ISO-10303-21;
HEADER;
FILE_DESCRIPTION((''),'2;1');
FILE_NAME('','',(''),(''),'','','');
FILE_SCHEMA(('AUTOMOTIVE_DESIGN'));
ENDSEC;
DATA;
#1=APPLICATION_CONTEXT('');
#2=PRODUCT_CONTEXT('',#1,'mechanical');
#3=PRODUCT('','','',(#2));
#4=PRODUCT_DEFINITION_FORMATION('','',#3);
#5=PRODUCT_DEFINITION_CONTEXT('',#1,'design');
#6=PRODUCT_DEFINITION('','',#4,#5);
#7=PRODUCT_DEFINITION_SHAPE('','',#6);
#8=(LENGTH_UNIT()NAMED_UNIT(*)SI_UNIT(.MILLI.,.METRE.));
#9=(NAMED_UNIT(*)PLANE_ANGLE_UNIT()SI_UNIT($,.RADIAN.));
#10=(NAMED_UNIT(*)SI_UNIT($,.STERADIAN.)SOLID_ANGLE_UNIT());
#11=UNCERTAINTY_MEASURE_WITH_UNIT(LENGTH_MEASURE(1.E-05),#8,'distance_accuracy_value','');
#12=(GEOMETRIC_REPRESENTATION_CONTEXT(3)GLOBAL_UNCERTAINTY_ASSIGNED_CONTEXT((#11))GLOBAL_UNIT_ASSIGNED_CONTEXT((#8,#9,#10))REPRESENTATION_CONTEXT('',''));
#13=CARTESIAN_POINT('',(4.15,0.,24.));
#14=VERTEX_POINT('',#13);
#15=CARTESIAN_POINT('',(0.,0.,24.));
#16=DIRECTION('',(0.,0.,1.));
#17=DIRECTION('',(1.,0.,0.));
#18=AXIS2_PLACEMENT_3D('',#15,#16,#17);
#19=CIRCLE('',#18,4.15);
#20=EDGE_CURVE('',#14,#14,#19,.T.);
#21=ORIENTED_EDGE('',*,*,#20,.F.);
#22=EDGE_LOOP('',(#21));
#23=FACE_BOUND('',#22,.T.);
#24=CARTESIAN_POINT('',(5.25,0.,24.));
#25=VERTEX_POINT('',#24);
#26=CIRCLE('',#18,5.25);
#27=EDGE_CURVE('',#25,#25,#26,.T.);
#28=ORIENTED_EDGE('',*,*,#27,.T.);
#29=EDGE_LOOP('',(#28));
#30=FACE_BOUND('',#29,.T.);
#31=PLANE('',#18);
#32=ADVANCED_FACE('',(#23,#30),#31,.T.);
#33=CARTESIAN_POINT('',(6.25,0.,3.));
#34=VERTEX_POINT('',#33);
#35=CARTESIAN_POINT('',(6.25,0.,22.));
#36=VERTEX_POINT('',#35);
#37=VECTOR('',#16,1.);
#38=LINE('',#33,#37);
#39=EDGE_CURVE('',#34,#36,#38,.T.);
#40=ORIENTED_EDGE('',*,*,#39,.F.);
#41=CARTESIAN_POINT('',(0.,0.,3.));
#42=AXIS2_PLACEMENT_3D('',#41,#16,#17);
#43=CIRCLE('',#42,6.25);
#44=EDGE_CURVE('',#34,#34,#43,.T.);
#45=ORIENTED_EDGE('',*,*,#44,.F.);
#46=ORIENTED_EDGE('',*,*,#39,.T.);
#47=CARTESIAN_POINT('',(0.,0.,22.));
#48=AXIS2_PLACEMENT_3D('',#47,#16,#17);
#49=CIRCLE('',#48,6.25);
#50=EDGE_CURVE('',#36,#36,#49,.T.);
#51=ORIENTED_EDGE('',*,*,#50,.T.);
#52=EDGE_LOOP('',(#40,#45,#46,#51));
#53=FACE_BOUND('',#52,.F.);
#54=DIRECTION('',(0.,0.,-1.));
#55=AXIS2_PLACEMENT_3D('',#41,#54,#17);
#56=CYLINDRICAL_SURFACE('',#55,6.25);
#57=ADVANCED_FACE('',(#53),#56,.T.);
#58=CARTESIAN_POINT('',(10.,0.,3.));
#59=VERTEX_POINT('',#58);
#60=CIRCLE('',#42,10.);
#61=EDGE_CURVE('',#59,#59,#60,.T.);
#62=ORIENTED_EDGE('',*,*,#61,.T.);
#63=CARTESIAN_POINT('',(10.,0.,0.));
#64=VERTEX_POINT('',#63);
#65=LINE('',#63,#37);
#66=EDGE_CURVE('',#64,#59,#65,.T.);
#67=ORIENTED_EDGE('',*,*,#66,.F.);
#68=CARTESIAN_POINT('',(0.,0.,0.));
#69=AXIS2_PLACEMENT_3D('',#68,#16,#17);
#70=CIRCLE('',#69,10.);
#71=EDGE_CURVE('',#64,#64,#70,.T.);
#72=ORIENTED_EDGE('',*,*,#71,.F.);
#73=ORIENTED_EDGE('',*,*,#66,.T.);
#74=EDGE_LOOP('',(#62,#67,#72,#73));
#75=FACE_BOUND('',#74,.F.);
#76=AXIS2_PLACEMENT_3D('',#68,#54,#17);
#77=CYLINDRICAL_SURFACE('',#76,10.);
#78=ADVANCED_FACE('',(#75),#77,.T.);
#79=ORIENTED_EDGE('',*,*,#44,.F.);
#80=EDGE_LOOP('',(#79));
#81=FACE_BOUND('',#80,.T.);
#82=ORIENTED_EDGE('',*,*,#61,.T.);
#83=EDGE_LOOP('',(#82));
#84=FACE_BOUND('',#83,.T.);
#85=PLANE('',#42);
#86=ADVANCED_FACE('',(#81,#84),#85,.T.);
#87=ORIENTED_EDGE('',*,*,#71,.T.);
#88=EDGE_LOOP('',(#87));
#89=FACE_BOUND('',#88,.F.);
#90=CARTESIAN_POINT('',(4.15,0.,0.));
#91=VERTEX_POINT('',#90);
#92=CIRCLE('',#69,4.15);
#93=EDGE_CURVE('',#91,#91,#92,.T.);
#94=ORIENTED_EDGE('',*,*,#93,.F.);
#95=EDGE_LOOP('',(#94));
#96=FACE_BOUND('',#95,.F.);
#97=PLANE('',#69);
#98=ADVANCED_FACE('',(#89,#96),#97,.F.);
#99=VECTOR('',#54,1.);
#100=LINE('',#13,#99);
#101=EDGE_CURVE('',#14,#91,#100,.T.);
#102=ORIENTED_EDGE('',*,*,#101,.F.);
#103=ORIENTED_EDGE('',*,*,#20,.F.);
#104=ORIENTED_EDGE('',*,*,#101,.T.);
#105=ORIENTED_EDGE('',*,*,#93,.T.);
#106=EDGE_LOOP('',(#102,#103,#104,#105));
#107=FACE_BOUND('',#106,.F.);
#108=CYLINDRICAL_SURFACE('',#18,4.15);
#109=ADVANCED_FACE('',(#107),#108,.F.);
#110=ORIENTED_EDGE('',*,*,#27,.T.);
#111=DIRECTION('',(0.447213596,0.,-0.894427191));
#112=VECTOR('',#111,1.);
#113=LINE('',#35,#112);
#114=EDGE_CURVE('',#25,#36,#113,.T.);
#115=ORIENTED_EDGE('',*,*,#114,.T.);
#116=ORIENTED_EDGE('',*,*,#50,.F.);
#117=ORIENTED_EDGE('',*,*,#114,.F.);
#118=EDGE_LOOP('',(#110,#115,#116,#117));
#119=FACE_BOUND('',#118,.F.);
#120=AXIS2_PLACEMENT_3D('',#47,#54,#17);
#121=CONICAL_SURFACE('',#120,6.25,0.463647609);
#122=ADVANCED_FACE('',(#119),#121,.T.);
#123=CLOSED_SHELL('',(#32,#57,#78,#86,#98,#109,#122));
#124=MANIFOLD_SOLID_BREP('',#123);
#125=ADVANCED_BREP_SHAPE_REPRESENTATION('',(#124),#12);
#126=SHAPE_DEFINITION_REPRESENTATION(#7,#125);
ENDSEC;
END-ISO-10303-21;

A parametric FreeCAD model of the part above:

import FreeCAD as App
import Part
import Sketcher


def edges_at(feature, points):
    """Names of the edges that pass closest to the given points."""
    edges = feature.Shape.Edges
    near = lambda p: min(range(len(edges)), key=lambda i: edges[i].distToShape(Part.Vertex(*p))[0])
    return sorted({f"Edge{near(p) + 1}" for p in points})

doc = App.newDocument("Part")
body = doc.addObject("PartDesign::Body", "Body")

# Sketch on XY plane
sketch1 = doc.addObject("Sketcher::SketchObject", "Sketch")
body.addObject(sketch1)
sketch1.AttachmentSupport = (doc.XY_Plane, [""])
sketch1.MapMode = "FlatFace"
sketch1.addGeometry(Part.Circle(App.Vector(0, 0, 0), App.Vector(0, 0, 1), 10), False)
sketch1.addConstraint([
    Sketcher.Constraint("Coincident", 0, 3, -1, 1),
    Sketcher.Constraint("Diameter", 0, 20.0),
])
pad1 = doc.addObject("PartDesign::Pad", "Pad")
body.addObject(pad1)
pad1.Profile = sketch1
pad1.Length = 3

# Sketch on XY plane
sketch2 = doc.addObject("Sketcher::SketchObject", "Sketch001")
body.addObject(sketch2)
sketch2.AttachmentSupport = (doc.XY_Plane, [""])
sketch2.MapMode = "FlatFace"
sketch2.AttachmentOffset = App.Placement(App.Vector(0, 0, 3), App.Rotation())
sketch2.addGeometry(Part.Circle(App.Vector(0, 0, 0), App.Vector(0, 0, 1), 6), False)
sketch2.addConstraint([
    Sketcher.Constraint("Coincident", 0, 3, -1, 1),
    Sketcher.Constraint("Diameter", 0, 12.5),
])
pad2 = doc.addObject("PartDesign::Pad", "Pad001")
body.addObject(pad2)
pad2.Profile = sketch2
pad2.Length = 21

# Sketch on XY plane
sketch3 = doc.addObject("Sketcher::SketchObject", "Sketch002")
body.addObject(sketch3)
sketch3.AttachmentSupport = (doc.XY_Plane, [""])
sketch3.MapMode = "FlatFace"
sketch3.AttachmentOffset = App.Placement(App.Vector(0, 0, 24), App.Rotation())
sketch3.addGeometry(Part.Circle(App.Vector(0, 0, 0), App.Vector(0, 0, 1), 4.2), False)
sketch3.addConstraint([
    Sketcher.Constraint("Coincident", 0, 3, -1, 1),
    Sketcher.Constraint("Diameter", 0, 8.3),
])
pocket1 = doc.addObject("PartDesign::Pocket", "Pocket")
body.addObject(pocket1)
pocket1.Profile = sketch3
pocket1.Length = 25
doc.recompute()

chamfer = doc.addObject("PartDesign::Chamfer", "Chamfer")
body.addObject(chamfer)
chamfer.Base = (pocket1, edges_at(pocket1, [(-6.25, 0, 24)]))
chamfer.ChamferType = "Two distances"
chamfer.Size = 1
chamfer.Size2 = 2
chamfer.FlipDirection = True

doc.recompute()
